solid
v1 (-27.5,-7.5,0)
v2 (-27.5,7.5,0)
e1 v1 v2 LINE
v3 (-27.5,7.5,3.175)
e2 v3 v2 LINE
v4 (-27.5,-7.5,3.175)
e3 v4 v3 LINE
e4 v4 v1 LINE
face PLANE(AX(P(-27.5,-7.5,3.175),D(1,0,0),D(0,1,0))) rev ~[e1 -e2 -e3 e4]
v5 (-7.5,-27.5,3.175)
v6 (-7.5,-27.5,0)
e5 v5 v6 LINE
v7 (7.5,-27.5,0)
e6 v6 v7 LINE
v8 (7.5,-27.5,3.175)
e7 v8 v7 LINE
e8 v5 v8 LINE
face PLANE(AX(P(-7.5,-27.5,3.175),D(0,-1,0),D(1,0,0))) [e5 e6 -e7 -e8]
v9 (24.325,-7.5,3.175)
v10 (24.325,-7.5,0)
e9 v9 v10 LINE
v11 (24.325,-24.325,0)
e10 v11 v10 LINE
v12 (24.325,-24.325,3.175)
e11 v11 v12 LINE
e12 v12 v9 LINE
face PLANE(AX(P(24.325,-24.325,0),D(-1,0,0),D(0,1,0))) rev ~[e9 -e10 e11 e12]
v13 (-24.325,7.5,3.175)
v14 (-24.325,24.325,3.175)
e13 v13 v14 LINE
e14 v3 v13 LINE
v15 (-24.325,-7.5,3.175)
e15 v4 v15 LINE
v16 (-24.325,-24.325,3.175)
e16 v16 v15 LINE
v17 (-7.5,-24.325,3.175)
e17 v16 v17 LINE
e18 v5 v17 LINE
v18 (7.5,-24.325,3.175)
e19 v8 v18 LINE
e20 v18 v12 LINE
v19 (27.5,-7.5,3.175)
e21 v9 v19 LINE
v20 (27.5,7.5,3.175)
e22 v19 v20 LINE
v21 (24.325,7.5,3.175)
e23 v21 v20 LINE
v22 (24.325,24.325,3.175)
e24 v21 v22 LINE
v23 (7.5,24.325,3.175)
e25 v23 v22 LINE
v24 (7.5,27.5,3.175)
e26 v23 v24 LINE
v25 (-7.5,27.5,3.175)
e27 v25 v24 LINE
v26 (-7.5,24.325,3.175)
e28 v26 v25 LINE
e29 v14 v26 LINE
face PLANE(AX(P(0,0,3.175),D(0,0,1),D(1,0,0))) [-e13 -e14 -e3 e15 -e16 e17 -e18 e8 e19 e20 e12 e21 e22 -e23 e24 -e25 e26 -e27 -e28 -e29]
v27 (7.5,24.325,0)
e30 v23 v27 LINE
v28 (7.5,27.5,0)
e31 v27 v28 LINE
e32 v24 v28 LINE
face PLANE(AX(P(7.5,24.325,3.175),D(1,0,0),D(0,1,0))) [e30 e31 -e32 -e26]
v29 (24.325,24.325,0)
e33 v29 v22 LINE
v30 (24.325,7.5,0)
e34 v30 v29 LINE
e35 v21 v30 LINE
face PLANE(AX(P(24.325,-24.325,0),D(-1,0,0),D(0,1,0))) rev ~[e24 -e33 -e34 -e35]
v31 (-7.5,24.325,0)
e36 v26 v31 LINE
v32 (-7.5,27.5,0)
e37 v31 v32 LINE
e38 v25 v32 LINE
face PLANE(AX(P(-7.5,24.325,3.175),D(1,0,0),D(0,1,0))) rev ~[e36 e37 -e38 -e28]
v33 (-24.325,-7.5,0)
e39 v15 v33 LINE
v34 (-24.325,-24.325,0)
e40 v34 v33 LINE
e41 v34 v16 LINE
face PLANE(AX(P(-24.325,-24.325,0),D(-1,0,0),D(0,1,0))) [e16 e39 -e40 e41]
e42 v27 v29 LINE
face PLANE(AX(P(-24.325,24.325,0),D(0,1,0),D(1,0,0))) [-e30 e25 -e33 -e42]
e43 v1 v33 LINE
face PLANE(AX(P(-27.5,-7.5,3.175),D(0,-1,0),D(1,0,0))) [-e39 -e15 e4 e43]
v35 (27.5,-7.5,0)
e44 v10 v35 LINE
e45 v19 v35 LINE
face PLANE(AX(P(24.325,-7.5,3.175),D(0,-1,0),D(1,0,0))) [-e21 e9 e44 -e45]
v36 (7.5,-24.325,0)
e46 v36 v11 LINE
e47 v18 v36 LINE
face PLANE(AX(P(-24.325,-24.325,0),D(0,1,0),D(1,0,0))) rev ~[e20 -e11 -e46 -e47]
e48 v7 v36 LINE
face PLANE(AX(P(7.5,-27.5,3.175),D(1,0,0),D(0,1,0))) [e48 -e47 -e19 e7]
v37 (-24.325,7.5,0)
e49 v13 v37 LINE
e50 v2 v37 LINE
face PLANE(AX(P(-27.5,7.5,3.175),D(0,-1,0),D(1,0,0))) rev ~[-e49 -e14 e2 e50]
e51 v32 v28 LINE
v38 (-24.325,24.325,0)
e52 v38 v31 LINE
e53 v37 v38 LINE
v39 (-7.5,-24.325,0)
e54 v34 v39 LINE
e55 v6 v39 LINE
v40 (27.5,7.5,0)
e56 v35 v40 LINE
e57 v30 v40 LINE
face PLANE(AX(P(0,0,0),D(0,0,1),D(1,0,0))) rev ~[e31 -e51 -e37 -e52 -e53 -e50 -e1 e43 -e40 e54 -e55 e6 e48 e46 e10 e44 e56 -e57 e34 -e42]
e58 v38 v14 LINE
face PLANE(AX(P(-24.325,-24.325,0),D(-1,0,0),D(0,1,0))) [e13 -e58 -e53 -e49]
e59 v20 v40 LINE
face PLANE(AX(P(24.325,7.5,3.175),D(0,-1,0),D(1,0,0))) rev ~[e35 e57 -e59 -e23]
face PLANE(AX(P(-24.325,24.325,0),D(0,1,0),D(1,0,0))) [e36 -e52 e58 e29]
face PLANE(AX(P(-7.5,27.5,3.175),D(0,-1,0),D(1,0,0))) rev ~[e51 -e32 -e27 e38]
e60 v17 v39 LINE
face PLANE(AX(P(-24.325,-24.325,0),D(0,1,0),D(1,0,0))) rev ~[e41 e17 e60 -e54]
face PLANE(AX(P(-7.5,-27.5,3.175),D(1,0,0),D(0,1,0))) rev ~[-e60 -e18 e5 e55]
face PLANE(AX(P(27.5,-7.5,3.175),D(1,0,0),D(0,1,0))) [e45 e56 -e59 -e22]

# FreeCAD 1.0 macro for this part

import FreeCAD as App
import Part
import Sketcher
Q = App.Units.Quantity


def add_polygon(sketch, points):
    """Adds a closed chain of lines whose ends are joined by coincident constraints."""
    first, n = sketch.GeometryCount, len(points)
    for a, b in zip(points, points[1:] + points[:1]):
        sketch.addGeometry(Part.LineSegment(App.Vector(*a, 0), App.Vector(*b, 0)), False)
    for i in range(n):
        sketch.addConstraint(Sketcher.Constraint("Coincident", first + i, 2, first + (i + 1) % n, 1))

doc = App.newDocument("Part")
params = doc.addObject("Spreadsheet::Sheet", "Params")
for row, (alias, value) in enumerate([
    ("sketch1_width", "48.65 mm"),
    ("pad1_length", "3.175 mm"),
    ("sketch2_width", "15 mm"),
], start=1):
    params.set(f"A{row}", alias)
    params.set(f"B{row}", "=" + value)
    params.setAlias(f"B{row}", alias)

body = doc.addObject("PartDesign::Body", "Body")

sketch1 = body.newObject("Sketcher::SketchObject", "Sketch")
sketch1.AttachmentSupport = (doc.getObject("XY_Plane"), [""])
sketch1.MapMode = "FlatFace"
add_polygon(sketch1, [(-24, 24), (-24, -24), (24, -24), (24, 24)])
sketch1.addConstraint(Sketcher.Constraint("Vertical", 0))
sketch1.addConstraint(Sketcher.Constraint("Horizontal", 1))
sketch1.addConstraint(Sketcher.Constraint("Vertical", 2))
sketch1.addConstraint(Sketcher.Constraint("Horizontal", 3))
sketch1.addConstraint(Sketcher.Constraint("Symmetric", 0, 2, 2, 2, -1, 1))
sketch1.addConstraint(Sketcher.Constraint("Equal", 3, 0))
sketch1.addConstraint(Sketcher.Constraint("DistanceX", 1, 1, 1, 2, Q("48.65 mm")))
sketch1.setExpression("Constraints[10]", "Params.sketch1_width")
pad1 = body.newObject("PartDesign::Pad", "Pad")
pad1.Profile = sketch1
pad1.setExpression("Length", "Params.pad1_length")

sketch2 = body.newObject("Sketcher::SketchObject", "Sketch001")
sketch2.AttachmentSupport = (doc.getObject("XY_Plane"), [""])
sketch2.MapMode = "FlatFace"
sketch2.AttachmentOffset = App.Placement(App.Vector(0, 0, 3.175), App.Rotation())
add_polygon(sketch2, [(-27.5, 7.5), (-27.5, -7.5), (-24.3, -7.5), (-24.3, 7.5)])
add_polygon(sketch2, [(-7.5, 27.5), (-7.5, 24.3), (7.5, 24.3), (7.5, 27.5)])
add_polygon(sketch2, [(-7.5, -24.3), (-7.5, -27.5), (7.5, -27.5), (7.5, -24.3)])
add_polygon(sketch2, [(24.3, 7.5), (24.3, -7.5), (27.5, -7.5), (27.5, 7.5)])
sketch2.addConstraint(Sketcher.Constraint("Vertical", 0))
sketch2.addConstraint(Sketcher.Constraint("Horizontal", 1))
sketch2.addConstraint(Sketcher.Constraint("Vertical", 2))
sketch2.addConstraint(Sketcher.Constraint("Horizontal", 3))
sketch2.addConstraint(Sketcher.Constraint("Vertical", 4))
sketch2.addConstraint(Sketcher.Constraint("Horizontal", 5))
sketch2.addConstraint(Sketcher.Constraint("Vertical", 6))
sketch2.addConstraint(Sketcher.Constraint("Horizontal", 7))
sketch2.addConstraint(Sketcher.Constraint("Vertical", 8))
sketch2.addConstraint(Sketcher.Constraint("Horizontal", 9))
sketch2.addConstraint(Sketcher.Constraint("Vertical", 10))
sketch2.addConstraint(Sketcher.Constraint("Horizontal", 11))
sketch2.addConstraint(Sketcher.Constraint("Vertical", 12))
sketch2.addConstraint(Sketcher.Constraint("Horizontal", 13))
sketch2.addConstraint(Sketcher.Constraint("Vertical", 14))
sketch2.addConstraint(Sketcher.Constraint("Horizontal", 15))
sketch2.addConstraint(Sketcher.Constraint("Symmetric", 6, 2, 8, 2, -1, 1))
sketch2.addConstraint(Sketcher.Constraint("Symmetric", 4, 2, 10, 2, -1, 1))
sketch2.addConstraint(Sketcher.Constraint("Symmetric", 2, 2, 12, 2, -1, 1))
sketch2.addConstraint(Sketcher.Constraint("Symmetric", 0, 2, 14, 2, -1, 1))
sketch2.addConstraint(Sketcher.Constraint("Horizontal", 1, 2, 12, 2))
sketch2.addConstraint(Sketcher.Constraint("Vertical", 7, 2, 8, 2))
sketch2.addConstraint(Sketcher.Constraint("Equal", 11, 0))
sketch2.addConstraint(Sketcher.Constraint("Equal", 15, 4))
sketch2.addConstraint(Sketcher.Constraint("DistanceX", 5, 1, 5, 2, Q("15 mm")))
sketch2.addConstraint(Sketcher.Constraint("DistanceX", 3, 2, 4, 2, Q("20 mm")))
sketch2.addConstraint(Sketcher.Constraint("DistanceY", 2, 2, 6, 2, Q("20 mm")))
sketch2.addConstraint(Sketcher.Constraint("DistanceX", 1, 1, 1, 2, Q("3.175 mm")))
sketch2.setExpression("Constraints[40]", "Params.sketch2_width")
pad2 = body.newObject("PartDesign::Pad", "Pad001")
pad2.Profile = sketch2
pad2.Type = "UpToLast"
pad2.Reversed = True

doc.recompute()
